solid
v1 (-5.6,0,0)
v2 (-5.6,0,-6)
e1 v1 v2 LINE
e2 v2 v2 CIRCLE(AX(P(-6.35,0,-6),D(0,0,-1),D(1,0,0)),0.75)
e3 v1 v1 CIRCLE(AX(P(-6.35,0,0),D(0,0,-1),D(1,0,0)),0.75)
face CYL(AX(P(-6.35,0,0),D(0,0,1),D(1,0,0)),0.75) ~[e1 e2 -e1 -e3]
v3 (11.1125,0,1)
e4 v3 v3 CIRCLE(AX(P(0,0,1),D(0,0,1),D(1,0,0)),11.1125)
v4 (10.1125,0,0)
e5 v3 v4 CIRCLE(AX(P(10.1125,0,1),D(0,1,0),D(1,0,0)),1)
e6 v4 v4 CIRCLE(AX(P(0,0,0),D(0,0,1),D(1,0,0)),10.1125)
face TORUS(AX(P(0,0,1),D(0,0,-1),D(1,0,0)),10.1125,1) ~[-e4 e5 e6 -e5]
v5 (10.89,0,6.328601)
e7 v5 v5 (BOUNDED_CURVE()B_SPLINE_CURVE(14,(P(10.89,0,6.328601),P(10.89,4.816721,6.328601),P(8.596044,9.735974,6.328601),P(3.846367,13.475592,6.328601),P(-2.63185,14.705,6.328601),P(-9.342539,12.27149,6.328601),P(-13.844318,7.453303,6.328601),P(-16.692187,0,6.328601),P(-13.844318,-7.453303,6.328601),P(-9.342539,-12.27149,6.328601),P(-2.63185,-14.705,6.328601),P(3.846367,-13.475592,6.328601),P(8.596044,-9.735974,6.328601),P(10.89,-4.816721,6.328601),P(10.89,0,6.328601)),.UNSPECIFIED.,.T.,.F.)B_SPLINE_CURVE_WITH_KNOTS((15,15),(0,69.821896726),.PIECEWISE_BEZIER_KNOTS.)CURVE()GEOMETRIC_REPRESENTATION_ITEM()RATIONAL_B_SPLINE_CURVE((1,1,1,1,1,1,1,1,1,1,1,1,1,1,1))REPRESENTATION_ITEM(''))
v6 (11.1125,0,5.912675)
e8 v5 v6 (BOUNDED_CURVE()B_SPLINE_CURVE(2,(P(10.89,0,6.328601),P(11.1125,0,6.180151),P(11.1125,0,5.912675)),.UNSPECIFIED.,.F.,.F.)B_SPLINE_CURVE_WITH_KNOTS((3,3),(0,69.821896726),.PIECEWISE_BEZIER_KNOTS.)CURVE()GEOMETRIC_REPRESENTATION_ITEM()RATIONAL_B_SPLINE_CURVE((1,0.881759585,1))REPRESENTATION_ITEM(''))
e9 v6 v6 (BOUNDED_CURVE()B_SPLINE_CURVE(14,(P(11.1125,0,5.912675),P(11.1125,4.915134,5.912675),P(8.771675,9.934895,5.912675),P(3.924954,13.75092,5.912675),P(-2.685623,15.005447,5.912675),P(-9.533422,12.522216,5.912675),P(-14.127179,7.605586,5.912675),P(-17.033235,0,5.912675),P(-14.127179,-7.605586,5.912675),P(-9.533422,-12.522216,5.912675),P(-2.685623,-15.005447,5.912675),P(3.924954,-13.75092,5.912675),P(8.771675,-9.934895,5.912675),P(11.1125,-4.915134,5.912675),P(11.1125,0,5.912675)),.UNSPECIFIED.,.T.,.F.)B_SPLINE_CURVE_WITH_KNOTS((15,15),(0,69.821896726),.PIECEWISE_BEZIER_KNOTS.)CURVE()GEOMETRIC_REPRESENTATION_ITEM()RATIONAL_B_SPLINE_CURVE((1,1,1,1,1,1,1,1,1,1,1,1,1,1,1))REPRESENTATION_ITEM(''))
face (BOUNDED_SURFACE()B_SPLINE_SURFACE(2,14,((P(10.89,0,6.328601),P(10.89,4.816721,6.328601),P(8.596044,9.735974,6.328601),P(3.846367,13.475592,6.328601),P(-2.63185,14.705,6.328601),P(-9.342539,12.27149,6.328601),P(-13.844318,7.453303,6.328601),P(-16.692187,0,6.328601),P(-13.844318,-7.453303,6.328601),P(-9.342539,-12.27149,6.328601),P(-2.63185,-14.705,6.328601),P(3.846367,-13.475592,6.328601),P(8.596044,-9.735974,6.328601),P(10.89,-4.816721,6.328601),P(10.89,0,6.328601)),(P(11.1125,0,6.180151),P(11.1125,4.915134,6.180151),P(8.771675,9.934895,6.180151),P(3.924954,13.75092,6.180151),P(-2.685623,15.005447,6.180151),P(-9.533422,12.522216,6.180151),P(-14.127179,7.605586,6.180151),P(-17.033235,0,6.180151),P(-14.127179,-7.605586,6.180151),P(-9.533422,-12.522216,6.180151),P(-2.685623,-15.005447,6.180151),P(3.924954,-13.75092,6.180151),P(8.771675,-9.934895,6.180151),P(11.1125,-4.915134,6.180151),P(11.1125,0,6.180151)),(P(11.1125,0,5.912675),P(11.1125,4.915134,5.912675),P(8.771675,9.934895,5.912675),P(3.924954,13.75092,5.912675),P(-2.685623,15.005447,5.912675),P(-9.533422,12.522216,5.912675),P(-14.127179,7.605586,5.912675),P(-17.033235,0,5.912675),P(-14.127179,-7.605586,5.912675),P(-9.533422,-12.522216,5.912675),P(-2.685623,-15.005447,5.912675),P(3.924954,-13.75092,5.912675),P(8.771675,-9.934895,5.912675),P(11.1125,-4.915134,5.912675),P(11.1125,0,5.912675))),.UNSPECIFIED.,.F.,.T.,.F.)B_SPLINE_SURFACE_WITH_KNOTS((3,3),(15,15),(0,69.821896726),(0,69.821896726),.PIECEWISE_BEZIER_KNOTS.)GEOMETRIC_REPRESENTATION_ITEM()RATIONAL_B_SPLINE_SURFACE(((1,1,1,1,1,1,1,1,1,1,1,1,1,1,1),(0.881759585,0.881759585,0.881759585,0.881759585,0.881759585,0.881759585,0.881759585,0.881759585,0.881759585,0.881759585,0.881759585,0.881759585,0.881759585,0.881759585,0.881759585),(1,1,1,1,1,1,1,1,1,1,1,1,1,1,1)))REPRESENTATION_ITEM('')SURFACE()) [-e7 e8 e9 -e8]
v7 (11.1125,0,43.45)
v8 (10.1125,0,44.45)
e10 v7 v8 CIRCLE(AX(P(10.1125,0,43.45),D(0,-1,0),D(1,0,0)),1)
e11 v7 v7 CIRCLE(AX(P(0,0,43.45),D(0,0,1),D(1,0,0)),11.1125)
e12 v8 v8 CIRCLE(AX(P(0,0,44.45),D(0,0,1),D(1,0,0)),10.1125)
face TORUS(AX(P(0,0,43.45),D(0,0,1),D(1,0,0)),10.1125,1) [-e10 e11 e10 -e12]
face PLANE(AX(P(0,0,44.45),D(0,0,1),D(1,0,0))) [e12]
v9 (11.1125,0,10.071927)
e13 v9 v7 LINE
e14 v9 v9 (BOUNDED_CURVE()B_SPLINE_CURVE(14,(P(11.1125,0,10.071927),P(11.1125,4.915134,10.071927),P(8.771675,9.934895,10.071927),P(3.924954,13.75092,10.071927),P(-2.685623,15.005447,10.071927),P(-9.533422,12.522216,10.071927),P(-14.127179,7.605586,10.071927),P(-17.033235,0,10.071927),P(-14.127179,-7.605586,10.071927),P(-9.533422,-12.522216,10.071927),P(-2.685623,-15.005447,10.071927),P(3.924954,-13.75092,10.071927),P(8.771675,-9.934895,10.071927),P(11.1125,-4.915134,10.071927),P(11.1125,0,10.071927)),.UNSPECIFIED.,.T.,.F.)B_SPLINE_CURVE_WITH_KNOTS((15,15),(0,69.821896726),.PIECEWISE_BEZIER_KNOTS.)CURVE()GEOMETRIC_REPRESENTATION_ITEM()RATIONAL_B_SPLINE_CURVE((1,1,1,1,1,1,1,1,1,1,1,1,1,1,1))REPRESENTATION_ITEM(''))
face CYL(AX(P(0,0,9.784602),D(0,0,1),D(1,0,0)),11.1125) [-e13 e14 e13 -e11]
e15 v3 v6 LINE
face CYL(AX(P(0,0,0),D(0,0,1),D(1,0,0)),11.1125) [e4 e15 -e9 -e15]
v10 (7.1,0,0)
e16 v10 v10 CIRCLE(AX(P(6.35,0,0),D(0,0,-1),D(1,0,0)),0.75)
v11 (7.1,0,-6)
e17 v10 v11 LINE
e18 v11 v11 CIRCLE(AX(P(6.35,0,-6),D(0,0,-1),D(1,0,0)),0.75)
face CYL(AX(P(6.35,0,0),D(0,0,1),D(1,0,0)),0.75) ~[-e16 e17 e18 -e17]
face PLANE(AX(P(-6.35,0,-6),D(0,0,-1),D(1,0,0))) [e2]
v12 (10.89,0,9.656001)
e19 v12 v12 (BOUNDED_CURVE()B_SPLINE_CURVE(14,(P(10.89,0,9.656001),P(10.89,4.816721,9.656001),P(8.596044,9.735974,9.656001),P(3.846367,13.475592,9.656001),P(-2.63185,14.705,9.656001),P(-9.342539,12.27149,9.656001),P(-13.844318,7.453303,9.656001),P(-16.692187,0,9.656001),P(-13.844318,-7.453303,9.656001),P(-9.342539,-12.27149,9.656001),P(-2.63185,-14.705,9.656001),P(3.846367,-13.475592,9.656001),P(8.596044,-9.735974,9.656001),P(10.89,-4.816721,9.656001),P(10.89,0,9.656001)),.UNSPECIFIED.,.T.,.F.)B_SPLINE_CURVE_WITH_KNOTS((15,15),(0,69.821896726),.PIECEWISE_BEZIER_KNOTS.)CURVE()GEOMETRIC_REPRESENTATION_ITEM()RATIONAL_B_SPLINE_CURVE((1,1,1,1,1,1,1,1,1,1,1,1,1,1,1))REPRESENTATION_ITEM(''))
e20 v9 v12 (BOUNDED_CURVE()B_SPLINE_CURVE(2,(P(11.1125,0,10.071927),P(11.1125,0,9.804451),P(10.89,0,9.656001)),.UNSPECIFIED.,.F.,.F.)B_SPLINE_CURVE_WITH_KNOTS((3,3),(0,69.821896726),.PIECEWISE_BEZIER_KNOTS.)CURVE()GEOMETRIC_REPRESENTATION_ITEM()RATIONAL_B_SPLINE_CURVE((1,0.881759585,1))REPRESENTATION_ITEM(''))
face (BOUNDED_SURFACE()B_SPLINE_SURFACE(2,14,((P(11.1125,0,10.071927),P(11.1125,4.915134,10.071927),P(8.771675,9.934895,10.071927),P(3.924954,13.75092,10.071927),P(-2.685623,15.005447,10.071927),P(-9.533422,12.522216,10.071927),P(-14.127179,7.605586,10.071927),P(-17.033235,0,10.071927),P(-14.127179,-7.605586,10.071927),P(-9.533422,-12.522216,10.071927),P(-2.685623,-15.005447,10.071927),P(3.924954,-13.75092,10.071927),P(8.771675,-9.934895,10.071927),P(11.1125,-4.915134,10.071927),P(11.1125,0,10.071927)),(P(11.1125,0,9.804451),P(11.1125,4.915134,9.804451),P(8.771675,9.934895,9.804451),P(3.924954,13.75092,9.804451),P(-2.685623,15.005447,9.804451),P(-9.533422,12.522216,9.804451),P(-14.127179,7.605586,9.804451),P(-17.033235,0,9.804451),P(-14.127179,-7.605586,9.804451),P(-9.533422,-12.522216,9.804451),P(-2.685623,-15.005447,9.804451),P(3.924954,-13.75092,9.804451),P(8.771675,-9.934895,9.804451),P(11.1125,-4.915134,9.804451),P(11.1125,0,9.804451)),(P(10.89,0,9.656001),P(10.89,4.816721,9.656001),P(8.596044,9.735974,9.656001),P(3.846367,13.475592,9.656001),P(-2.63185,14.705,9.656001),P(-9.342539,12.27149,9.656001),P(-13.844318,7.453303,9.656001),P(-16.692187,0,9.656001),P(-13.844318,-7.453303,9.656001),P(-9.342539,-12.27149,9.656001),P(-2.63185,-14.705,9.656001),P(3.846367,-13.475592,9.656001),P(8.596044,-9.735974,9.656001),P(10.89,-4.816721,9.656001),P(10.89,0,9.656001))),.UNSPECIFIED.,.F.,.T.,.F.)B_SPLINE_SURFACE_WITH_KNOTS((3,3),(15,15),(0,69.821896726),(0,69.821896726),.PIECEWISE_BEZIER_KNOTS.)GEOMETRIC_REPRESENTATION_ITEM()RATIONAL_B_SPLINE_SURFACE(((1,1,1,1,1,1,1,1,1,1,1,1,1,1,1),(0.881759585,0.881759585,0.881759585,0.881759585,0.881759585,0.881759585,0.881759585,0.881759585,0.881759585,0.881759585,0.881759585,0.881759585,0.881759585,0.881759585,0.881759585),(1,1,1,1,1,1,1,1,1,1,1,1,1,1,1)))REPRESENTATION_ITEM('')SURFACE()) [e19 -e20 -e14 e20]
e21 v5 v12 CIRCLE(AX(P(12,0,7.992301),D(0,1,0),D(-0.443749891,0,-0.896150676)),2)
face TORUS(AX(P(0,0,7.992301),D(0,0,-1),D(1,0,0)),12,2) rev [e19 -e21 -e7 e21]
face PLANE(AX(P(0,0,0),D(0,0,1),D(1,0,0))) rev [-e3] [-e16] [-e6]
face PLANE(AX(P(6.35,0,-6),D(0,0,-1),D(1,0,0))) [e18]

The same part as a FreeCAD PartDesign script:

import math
import FreeCAD as App
import Part
import Sketcher
from FreeCAD import Vector
Q = App.Units.Quantity


def edges_at(feature, points):
    """Names of the edges that pass closest to the given points."""
    edges = feature.Shape.Edges
    near = lambda p: min(range(len(edges)), key=lambda i: edges[i].distToShape(Part.Vertex(*p))[0])
    return sorted({f"Edge{near(p) + 1}" for p in points})

doc = App.newDocument("Part")
body = doc.addObject("PartDesign::Body", "Body")

sketch1 = doc.addObject("Sketcher::SketchObject", "Sketch")
body.addObject(sketch1)
sketch1.AttachmentSupport = (doc.XZ_Plane, [""])
sketch1.MapMode = "FlatFace"
sketch1.addGeometry([
    Part.LineSegment(Vector(0, 44.5, 0), Vector(0, 0, 0)),
    Part.LineSegment(Vector(0, 0, 0), Vector(11.1, 0, 0)),
    Part.LineSegment(Vector(11.1, 0, 0), Vector(11.1, 6.2, 0)),
    Part.ArcOfCircle(Part.Circle(Vector(12, 8, 0), Vector(0, 0, 1), 2), math.radians(116), math.radians(244)),
    Part.LineSegment(Vector(11.1, 9.8, 0), Vector(11.1, 44.5, 0)),
    Part.LineSegment(Vector(11.1, 44.5, 0), Vector(0, 44.5, 0)),
], False)
sketch1.addConstraint([
    Sketcher.Constraint("Coincident", 0, 2, 1, 1),
    Sketcher.Constraint("Coincident", 1, 2, 2, 1),
    Sketcher.Constraint("Coincident", 2, 2, 3, 2),
    Sketcher.Constraint("Coincident", 3, 1, 4, 1),
    Sketcher.Constraint("Coincident", 4, 2, 5, 1),
    Sketcher.Constraint("Coincident", 5, 2, 0, 1),
    Sketcher.Constraint("Vertical", 0),
    Sketcher.Constraint("Horizontal", 1),
    Sketcher.Constraint("Vertical", 2),
    Sketcher.Constraint("Vertical", 4),
    Sketcher.Constraint("Horizontal", 5),
    Sketcher.Constraint("Coincident", 0, 2, -1, 1),
    Sketcher.Constraint("Vertical", 2, 2, 3, 1),
    Sketcher.Constraint("Radius", 3, Q("2 mm")),
    Sketcher.Constraint("DistanceY", 2, 1, 2, 2, Q("6.2 mm")),
    Sketcher.Constraint("DistanceX", -1, 1, 3, 3, Q("12 mm")),
    Sketcher.Constraint("DistanceY", 0, 2, 0, 1, Q("44.45 mm")),
    Sketcher.Constraint("DistanceX", 1, 1, 1, 2, Q("11.1125 mm")),
])
revolution = doc.addObject("PartDesign::Revolution", "Revolution")
body.addObject(revolution)
revolution.Profile = sketch1
revolution.ReferenceAxis = (sketch1, ["V_Axis"])
revolution.Angle = 360
doc.recompute()

fillet = doc.addObject("PartDesign::Fillet", "Fillet")
body.addObject(fillet)
fillet.Base = (revolution, edges_at(revolution, [(-11.113, 0, 44.45)]))
fillet.Radius = 1
doc.recompute()

fillet2 = doc.addObject("PartDesign::Fillet", "Fillet001")
body.addObject(fillet2)
fillet2.Base = (fillet, edges_at(fillet, [
    (11.113, 0, 26.617),
    (-11.113, 0, 43.45),
    (-11.113, 0, 9.785),
    (-11.113, 0, 6.2),
]))
fillet2.Radius = 0.5
doc.recompute()

fillet3 = doc.addObject("PartDesign::Fillet", "Fillet002")
body.addObject(fillet3)
fillet3.Base = (fillet2, edges_at(fillet2, [(-11.113, 0, 0)]))
fillet3.Radius = 1

sketch2 = doc.addObject("Sketcher::SketchObject", "Sketch001")
body.addObject(sketch2)
sketch2.AttachmentSupport = (doc.XY_Plane, [""])
sketch2.MapMode = "FlatFace"
sketch2.addGeometry([
    Part.Circle(Vector(-6.3, 0, 0), Vector(0, 0, 1), 0.8),
    Part.Circle(Vector(6.3, 0, 0), Vector(0, 0, 1), 0.8),
], False)
sketch2.addConstraint([
    Sketcher.Constraint("Equal", 0, 1),
    Sketcher.Constraint("Symmetric", 0, 3, 1, 3, -1, 1),
    Sketcher.Constraint("PointOnObject", 0, 3, -1),
    Sketcher.Constraint("Diameter", 0, Q("1.5 mm")),
    Sketcher.Constraint("DistanceX", 0, 3, 1, 3, Q("12.7 mm")),
])
pad1 = doc.addObject("PartDesign::Pad", "Pad")
body.addObject(pad1)
pad1.Profile = sketch2
pad1.Length = 6
pad1.Reversed = True

doc.recompute()
